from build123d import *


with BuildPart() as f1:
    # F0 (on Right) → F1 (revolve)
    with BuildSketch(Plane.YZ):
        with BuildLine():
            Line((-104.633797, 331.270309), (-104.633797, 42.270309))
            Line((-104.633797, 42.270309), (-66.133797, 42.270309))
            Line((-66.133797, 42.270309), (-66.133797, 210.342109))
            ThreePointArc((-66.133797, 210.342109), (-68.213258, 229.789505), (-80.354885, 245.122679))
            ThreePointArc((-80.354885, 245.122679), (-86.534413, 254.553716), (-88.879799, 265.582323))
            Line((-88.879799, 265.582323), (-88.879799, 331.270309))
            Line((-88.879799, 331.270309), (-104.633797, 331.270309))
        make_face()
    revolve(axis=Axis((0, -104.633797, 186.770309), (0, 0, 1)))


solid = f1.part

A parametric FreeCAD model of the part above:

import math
import FreeCAD as App
import Part
import Sketcher
from FreeCAD import Vector

doc = App.newDocument("Part")
body = doc.addObject("PartDesign::Body", "Body")

sketch1 = body.newObject("Sketcher::SketchObject", "Sketch")
sketch1.AttachmentSupport = (doc.getObject("YZ_Plane"), [""])
sketch1.MapMode = "FlatFace"
sketch1.addGeometry(Part.LineSegment(Vector(-104.633797, 331.270309, 0), Vector(-104.633797, 42.270309, 0)), False)
sketch1.addGeometry(Part.LineSegment(Vector(-104.633797, 42.270309, 0), Vector(-66.133797, 42.270309, 0)), False)
sketch1.addGeometry(Part.LineSegment(Vector(-66.133797, 42.270309, 0), Vector(-66.133797, 210.342109, 0)), False)
sketch1.addGeometry(Part.ArcOfCircle(Part.Circle(Vector(-100.784157, 216.471907, 0), Vector(0, 0, 1), 35.188377), math.radians(-10.032078), math.radians(54.509444)), False)
sketch1.addGeometry(Part.ArcOfCircle(Part.Circle(Vector(-58.281827, 266.325713, 0), Vector(0, 0, 1), 30.607001), math.radians(-178.608251), math.radians(-136.151722)), False)
sketch1.addGeometry(Part.LineSegment(Vector(-88.879799, 265.582323, 0), Vector(-88.879799, 331.270309, 0)), False)
sketch1.addGeometry(Part.LineSegment(Vector(-88.879799, 331.270309, 0), Vector(-104.633797, 331.270309, 0)), False)
sketch1.addGeometry(Part.LineSegment(Vector(-104.633797, 42.270309, 0), Vector(-104.633797, 331.270309, 0)), True)
sketch1.addConstraint(Sketcher.Constraint("Coincident", 0, 2, 1, 1))
sketch1.addConstraint(Sketcher.Constraint("Coincident", 1, 2, 2, 1))
sketch1.addConstraint(Sketcher.Constraint("Coincident", 2, 2, 3, 1))
sketch1.addConstraint(Sketcher.Constraint("Coincident", 3, 2, 4, 2))
sketch1.addConstraint(Sketcher.Constraint("Coincident", 4, 1, 5, 1))
sketch1.addConstraint(Sketcher.Constraint("Coincident", 5, 2, 6, 1))
sketch1.addConstraint(Sketcher.Constraint("Coincident", 6, 2, 0, 1))
sketch1.addConstraint(Sketcher.Constraint("Vertical", 0))
sketch1.addConstraint(Sketcher.Constraint("Horizontal", 1))
sketch1.addConstraint(Sketcher.Constraint("Vertical", 2))
sketch1.addConstraint(Sketcher.Constraint("Vertical", 5))
sketch1.addConstraint(Sketcher.Constraint("Horizontal", 6))
sketch1.addConstraint(Sketcher.Constraint("Vertical", 7))
sketch1.addConstraint(Sketcher.Constraint("Coincident", 7, 1, 0, 2))
sketch1.addConstraint(Sketcher.Constraint("Horizontal", 5, 2, 7, 2))
sketch1.addConstraint(Sketcher.Constraint("DistanceY", 0, 2, 0, 1, 289.0))
sketch1.addConstraint(Sketcher.Constraint("DistanceX", 1, 1, 1, 2, 38.5))
sketch1.addConstraint(Sketcher.Constraint("Radius", 4, 30.607001))
sketch1.addConstraint(Sketcher.Constraint("DistanceY", 2, 1, 2, 2, 168.0718))
sketch1.addConstraint(Sketcher.Constraint("Radius", 3, 35.188377))
sketch1.addConstraint(Sketcher.Constraint("DistanceX", 4, 1, -1, 1, 88.879799))
sketch1.addConstraint(Sketcher.Constraint("DistanceY", 0, 2, 3, 3, 174.201598))
sketch1.addConstraint(Sketcher.Constraint("DistanceX", 6, 2, 6, 1, 15.753998))
sketch1.addConstraint(Sketcher.Constraint("DistanceY", 5, 1, 5, 2, 65.687986))
sketch1.addConstraint(Sketcher.Constraint("DistanceY", -1, 1, 0, 2, 42.270309))
sketch1.addConstraint(Sketcher.Constraint("DistanceY", -1, 1, 3, 2, 245.122679))
revolution = body.newObject("PartDesign::Revolution", "Revolution")
revolution.Profile = sketch1
revolution.ReferenceAxis = (sketch1, ["Axis0"])
revolution.Angle = 360

doc.recompute()
